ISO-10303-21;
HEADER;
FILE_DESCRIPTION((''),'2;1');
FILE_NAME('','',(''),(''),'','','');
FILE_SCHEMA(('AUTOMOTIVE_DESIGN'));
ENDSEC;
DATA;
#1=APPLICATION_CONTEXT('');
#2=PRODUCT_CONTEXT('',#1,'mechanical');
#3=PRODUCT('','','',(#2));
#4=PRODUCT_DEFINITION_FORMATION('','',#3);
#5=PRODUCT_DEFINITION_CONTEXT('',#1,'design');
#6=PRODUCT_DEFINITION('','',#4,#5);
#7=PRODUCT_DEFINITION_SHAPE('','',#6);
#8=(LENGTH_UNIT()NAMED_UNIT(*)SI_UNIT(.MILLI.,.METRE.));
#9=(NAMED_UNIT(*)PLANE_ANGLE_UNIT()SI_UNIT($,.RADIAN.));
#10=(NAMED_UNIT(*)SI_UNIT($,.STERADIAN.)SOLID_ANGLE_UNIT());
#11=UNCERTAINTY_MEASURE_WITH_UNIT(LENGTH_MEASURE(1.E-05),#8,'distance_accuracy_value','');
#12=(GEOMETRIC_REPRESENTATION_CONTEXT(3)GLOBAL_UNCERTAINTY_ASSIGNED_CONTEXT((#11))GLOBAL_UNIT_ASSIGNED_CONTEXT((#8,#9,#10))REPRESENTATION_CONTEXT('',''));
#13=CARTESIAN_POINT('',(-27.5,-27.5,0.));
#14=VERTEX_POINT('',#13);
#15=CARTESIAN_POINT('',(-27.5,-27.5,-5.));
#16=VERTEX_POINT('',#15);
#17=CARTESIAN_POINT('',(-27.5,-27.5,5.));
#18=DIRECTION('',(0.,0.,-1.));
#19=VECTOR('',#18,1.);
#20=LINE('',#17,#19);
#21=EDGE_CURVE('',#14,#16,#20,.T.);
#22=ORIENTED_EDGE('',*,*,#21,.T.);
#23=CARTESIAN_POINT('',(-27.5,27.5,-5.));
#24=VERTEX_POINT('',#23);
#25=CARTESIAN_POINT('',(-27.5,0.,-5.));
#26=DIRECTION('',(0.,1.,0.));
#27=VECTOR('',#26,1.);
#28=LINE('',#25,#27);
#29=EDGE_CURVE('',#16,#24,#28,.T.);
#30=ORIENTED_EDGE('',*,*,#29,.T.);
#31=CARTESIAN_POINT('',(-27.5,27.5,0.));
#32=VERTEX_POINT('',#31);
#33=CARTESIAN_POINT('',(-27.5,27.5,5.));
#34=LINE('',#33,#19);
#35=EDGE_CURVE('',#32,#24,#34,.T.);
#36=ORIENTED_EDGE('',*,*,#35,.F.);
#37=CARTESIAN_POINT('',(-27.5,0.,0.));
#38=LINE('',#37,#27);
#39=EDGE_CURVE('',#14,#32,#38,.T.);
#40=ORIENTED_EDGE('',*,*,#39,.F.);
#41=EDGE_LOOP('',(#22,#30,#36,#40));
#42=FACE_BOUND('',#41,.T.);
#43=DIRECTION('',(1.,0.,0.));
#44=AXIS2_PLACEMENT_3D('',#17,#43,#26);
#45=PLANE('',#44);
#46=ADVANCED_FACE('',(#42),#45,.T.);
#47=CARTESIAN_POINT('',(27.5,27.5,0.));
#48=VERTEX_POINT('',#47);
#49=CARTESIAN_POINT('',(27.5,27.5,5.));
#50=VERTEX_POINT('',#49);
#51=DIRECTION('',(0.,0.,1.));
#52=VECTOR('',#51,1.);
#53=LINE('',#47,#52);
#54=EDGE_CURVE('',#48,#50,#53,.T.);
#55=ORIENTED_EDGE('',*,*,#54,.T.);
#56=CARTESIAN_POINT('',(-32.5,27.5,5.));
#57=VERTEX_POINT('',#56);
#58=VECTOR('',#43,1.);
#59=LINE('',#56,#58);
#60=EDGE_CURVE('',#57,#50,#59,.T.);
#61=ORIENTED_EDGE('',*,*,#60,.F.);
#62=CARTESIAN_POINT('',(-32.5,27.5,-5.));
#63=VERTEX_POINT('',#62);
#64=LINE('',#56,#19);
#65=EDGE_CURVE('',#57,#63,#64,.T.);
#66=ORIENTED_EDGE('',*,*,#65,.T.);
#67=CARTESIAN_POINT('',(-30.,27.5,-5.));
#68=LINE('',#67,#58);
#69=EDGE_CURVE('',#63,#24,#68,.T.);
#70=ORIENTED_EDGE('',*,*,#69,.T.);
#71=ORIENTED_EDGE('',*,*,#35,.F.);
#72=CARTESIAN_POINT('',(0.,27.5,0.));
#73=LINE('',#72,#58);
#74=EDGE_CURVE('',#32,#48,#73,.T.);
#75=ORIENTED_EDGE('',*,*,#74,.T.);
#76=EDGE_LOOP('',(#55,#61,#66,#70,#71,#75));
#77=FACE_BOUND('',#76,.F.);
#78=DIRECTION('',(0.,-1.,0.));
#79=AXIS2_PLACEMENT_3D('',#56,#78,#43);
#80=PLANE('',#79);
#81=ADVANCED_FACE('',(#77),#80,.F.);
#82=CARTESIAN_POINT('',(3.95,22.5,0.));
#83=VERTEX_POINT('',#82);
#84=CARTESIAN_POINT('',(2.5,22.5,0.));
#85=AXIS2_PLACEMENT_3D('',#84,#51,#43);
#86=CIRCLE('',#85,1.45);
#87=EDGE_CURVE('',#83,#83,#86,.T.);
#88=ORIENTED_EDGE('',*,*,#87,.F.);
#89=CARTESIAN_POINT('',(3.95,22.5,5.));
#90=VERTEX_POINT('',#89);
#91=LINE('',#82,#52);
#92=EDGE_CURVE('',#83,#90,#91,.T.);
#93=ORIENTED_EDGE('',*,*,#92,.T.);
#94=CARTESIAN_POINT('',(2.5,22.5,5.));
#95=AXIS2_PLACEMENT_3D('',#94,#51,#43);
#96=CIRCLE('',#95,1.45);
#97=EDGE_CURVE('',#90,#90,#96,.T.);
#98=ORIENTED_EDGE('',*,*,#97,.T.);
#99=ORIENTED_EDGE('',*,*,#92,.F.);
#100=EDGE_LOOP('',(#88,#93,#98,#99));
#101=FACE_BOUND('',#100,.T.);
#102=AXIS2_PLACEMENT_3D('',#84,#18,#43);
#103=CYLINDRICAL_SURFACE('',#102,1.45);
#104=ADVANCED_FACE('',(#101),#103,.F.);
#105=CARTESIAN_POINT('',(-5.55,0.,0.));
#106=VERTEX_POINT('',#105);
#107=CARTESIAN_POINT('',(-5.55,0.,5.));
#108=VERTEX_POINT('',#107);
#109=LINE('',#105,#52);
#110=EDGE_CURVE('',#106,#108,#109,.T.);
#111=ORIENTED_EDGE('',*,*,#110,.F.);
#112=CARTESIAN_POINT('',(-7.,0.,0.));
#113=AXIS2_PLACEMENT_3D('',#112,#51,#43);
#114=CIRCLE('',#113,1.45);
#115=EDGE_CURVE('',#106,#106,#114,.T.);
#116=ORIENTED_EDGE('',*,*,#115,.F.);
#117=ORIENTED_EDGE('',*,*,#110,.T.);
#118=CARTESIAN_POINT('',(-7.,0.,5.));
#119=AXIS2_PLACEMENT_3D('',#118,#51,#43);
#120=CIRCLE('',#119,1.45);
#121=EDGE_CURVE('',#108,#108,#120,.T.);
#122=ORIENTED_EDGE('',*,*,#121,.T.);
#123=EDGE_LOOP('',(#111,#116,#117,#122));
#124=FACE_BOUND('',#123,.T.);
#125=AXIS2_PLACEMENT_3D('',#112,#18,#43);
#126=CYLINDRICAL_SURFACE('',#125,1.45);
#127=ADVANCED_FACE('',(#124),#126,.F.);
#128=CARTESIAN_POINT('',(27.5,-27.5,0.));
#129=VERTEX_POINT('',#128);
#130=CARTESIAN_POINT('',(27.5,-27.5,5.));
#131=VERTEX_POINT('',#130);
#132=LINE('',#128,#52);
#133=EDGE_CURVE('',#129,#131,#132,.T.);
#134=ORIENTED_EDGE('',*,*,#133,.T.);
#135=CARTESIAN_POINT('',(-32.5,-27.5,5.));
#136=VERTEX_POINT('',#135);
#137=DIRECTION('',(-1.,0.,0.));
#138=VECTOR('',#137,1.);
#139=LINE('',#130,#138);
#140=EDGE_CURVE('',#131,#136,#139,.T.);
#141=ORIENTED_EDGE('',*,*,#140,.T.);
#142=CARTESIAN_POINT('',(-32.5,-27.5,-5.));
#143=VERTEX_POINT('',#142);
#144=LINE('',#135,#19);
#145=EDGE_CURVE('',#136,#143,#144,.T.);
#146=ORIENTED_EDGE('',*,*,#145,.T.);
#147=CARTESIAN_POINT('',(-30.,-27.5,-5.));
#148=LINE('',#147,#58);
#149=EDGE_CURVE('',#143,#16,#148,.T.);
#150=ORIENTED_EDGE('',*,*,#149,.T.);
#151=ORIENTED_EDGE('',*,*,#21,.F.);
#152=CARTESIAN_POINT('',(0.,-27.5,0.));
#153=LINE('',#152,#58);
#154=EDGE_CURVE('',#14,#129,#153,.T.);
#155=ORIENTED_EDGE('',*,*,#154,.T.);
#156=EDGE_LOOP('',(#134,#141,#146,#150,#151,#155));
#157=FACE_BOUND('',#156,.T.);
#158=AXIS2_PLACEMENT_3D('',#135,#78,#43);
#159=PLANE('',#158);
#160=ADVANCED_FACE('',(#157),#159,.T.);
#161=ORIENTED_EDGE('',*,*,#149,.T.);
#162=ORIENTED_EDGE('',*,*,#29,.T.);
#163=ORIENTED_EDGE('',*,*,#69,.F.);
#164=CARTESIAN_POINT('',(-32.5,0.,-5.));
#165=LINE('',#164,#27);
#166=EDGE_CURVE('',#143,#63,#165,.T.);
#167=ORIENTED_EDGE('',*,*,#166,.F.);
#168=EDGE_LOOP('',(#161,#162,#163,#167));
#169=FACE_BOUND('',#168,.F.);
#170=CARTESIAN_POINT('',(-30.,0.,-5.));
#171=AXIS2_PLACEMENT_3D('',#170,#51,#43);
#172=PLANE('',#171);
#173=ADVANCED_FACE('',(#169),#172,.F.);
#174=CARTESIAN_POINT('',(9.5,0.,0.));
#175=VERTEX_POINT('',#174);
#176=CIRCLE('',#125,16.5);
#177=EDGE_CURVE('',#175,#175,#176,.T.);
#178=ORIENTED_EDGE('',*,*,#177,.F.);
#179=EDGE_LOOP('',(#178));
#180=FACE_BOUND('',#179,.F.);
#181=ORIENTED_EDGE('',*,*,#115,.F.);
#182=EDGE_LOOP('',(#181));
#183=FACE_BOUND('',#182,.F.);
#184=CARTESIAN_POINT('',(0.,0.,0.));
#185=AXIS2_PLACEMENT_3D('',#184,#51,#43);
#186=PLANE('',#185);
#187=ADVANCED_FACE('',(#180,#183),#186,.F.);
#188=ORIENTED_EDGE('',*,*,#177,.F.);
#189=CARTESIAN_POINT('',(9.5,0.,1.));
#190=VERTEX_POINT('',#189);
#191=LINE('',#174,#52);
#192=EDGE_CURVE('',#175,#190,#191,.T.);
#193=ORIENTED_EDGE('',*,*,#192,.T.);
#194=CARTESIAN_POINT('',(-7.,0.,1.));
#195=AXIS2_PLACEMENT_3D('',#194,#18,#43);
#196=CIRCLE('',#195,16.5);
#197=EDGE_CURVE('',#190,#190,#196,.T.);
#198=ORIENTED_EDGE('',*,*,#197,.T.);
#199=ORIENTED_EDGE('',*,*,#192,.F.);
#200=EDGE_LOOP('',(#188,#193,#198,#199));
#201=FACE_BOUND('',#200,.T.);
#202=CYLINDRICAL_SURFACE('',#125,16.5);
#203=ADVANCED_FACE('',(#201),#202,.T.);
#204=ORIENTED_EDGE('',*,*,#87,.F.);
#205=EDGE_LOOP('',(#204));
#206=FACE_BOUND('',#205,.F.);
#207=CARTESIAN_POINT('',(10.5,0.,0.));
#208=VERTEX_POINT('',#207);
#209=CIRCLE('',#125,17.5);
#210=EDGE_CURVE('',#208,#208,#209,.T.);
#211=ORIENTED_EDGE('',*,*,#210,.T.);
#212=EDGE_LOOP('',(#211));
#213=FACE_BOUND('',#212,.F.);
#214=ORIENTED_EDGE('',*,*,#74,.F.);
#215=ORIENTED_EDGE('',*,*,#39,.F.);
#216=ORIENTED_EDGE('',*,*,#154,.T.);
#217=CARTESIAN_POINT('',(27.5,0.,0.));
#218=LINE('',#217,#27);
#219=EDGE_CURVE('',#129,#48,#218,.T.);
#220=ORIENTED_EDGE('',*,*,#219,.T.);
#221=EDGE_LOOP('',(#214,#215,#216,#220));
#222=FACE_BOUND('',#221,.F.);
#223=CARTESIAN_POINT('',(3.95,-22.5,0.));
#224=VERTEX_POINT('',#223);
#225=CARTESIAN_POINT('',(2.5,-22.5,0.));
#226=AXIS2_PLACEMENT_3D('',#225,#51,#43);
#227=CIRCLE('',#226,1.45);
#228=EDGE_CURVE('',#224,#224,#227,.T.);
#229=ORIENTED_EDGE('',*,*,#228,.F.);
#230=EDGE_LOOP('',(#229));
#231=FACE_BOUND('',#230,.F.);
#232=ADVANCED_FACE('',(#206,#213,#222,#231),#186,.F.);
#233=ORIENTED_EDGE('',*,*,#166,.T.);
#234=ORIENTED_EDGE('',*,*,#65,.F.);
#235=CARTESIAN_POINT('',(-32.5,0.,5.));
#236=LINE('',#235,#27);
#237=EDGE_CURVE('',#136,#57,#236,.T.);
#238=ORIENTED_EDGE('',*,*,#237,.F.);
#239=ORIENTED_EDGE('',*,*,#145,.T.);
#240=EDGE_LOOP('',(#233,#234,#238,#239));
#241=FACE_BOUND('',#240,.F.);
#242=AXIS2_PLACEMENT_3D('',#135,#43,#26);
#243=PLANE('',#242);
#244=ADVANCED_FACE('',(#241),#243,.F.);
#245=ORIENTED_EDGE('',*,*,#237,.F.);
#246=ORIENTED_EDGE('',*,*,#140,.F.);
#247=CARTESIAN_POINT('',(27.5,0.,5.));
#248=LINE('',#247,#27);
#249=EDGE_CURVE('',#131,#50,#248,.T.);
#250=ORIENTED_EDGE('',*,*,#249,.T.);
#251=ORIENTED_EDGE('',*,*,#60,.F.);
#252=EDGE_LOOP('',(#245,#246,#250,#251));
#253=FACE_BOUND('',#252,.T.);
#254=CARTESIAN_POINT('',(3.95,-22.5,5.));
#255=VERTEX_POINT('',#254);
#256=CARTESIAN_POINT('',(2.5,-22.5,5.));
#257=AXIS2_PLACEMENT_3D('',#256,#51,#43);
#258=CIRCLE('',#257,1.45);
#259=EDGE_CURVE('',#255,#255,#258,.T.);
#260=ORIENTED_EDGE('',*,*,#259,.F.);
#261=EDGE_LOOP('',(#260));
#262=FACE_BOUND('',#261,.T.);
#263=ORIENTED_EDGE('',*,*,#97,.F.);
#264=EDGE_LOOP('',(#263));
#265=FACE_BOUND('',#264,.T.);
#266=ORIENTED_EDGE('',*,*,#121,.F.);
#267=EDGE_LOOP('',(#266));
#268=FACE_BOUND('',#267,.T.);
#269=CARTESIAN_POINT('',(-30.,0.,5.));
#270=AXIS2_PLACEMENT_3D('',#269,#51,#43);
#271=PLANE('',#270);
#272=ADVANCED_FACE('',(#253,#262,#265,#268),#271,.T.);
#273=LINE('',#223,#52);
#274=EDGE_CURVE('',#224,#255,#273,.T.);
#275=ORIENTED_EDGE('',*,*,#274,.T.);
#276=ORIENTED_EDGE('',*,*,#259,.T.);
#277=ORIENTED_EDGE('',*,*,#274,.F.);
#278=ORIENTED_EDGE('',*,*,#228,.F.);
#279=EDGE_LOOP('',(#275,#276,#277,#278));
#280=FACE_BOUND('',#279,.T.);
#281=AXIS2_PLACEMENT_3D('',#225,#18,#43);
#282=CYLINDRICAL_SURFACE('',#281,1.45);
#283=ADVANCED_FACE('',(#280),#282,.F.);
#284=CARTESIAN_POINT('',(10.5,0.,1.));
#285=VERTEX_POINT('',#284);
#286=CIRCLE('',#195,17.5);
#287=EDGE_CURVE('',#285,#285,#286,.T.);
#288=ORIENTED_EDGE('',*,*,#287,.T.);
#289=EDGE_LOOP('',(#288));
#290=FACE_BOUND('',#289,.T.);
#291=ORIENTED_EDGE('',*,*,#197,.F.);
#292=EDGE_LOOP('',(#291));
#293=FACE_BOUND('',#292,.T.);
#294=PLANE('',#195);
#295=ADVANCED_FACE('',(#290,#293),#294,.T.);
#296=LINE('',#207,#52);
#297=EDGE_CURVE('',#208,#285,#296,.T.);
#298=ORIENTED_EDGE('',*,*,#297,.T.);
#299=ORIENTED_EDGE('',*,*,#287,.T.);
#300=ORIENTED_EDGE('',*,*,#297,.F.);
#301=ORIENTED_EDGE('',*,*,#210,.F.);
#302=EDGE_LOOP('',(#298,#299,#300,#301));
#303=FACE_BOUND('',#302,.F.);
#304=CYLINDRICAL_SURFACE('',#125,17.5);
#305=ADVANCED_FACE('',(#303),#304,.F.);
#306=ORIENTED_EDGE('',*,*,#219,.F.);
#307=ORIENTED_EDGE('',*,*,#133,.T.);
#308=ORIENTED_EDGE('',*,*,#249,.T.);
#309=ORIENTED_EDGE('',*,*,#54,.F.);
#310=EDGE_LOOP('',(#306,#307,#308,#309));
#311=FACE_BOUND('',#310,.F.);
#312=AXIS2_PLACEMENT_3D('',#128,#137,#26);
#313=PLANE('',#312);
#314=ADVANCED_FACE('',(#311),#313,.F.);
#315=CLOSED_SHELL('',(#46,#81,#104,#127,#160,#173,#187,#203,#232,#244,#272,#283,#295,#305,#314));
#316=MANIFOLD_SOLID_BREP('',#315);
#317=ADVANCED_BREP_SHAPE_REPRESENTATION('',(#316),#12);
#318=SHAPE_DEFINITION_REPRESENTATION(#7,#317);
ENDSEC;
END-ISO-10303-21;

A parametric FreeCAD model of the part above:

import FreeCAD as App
import Part
import Sketcher


def add_polygon(sketch, points):
    """Adds a closed chain of lines whose ends are joined by coincident constraints."""
    first, n = sketch.GeometryCount, len(points)
    for a, b in zip(points, points[1:] + points[:1]):
        sketch.addGeometry(Part.LineSegment(App.Vector(*a, 0), App.Vector(*b, 0)), False)
    for i in range(n):
        sketch.addConstraint(Sketcher.Constraint("Coincident", first + i, 2, first + (i + 1) % n, 1))

doc = App.newDocument("Part")
body = doc.addObject("PartDesign::Body", "Body")

# Sketch on XY plane
sketch1 = body.newObject("Sketcher::SketchObject", "Sketch")
sketch1.AttachmentSupport = (doc.getObject("XY_Plane"), [""])
sketch1.MapMode = "FlatFace"
add_polygon(sketch1, [(-27.5, 27.5), (-27.5, -27.5), (27.5, -27.5), (27.5, 27.5)])  # lines 0-3
sketch1.addGeometry(Part.Circle(App.Vector(2.5, -22.5, 0), App.Vector(0, 0, 1), 1.4), False)  # 4
sketch1.addGeometry(Part.Circle(App.Vector(-7, 0, 0), App.Vector(0, 0, 1), 1.4), False)  # 5
sketch1.addGeometry(Part.Circle(App.Vector(2.5, 22.5, 0), App.Vector(0, 0, 1), 1.4), False)  # 6
sketch1.addConstraint([
    Sketcher.Constraint("Vertical", 0),
    Sketcher.Constraint("Horizontal", 1),
    Sketcher.Constraint("Vertical", 2),
    Sketcher.Constraint("Horizontal", 3),
    Sketcher.Constraint("Equal", 4, 5),
    Sketcher.Constraint("Equal", 5, 6),
    Sketcher.Constraint("Symmetric", 0, 2, 2, 2, -1, 1),
    Sketcher.Constraint("Symmetric", 4, 3, 6, 3, -1),
    Sketcher.Constraint("PointOnObject", 5, 3, -1),
    Sketcher.Constraint("Equal", 3, 0),
    Sketcher.Constraint("Diameter", 4, 2.9),
    Sketcher.Constraint("DistanceX", 1, 1, 1, 2, 55.0),
    Sketcher.Constraint("DistanceX", 5, 3, -1, 1, 7.0),
    Sketcher.Constraint("DistanceY", 4, 3, 6, 3, 45.0),
    Sketcher.Constraint("DistanceX", 0, 2, 4, 3, 30.0),
])
pad1 = body.newObject("PartDesign::Pad", "Pad")
pad1.Profile = sketch1
pad1.Length = 5

# Sketch on XY plane
sketch2 = body.newObject("Sketcher::SketchObject", "Sketch001")
sketch2.AttachmentSupport = (doc.getObject("XY_Plane"), [""])
sketch2.MapMode = "FlatFace"
sketch2.addGeometry([
    Part.Circle(App.Vector(-7, 0, 0), App.Vector(0, 0, 1), 18),
    Part.Circle(App.Vector(-7, 0, 0), App.Vector(0, 0, 1), 16),
], False)
sketch2.addConstraint([
    Sketcher.Constraint("Coincident", 1, 3, 0, 3),
    Sketcher.Constraint("PointOnObject", 0, 3, -1),
    Sketcher.Constraint("Diameter", 0, 35.0),
    Sketcher.Constraint("Diameter", 1, 33.0),
    Sketcher.Constraint("DistanceX", 0, 3, -1, 1, 7.0),
])
pocket1 = body.newObject("PartDesign::Pocket", "Pocket")
pocket1.Profile = sketch2
pocket1.Length = 1
pocket1.Reversed = True

# Sketch on XY plane
sketch3 = body.newObject("Sketcher::SketchObject", "Sketch002")
sketch3.AttachmentSupport = (doc.getObject("XY_Plane"), [""])
sketch3.MapMode = "FlatFace"
sketch3.AttachmentOffset = App.Placement(App.Vector(0, 0, 5), App.Rotation())
add_polygon(sketch3, [(-32, 28), (-32, -28), (-28, -28), (-28, 28)])  # lines 0-3
sketch3.addConstraint([
    Sketcher.Constraint("Vertical", 0),
    Sketcher.Constraint("Horizontal", 1),
    Sketcher.Constraint("Vertical", 2),
    Sketcher.Constraint("Horizontal", 3),
    Sketcher.Constraint("DistanceX", 1, 1, 1, 2, 5.0),
    Sketcher.Constraint("DistanceY", 0, 2, 0, 1, 55.0),
    Sketcher.Constraint("DistanceX", 0, 2, -1, 1, 32.5),
    Sketcher.Constraint("DistanceY", 0, 2, -1, 1, 27.5),
])
pad2 = body.newObject("PartDesign::Pad", "Pad001")
pad2.Profile = sketch3
pad2.Length = 10
pad2.Reversed = True

doc.recompute()
